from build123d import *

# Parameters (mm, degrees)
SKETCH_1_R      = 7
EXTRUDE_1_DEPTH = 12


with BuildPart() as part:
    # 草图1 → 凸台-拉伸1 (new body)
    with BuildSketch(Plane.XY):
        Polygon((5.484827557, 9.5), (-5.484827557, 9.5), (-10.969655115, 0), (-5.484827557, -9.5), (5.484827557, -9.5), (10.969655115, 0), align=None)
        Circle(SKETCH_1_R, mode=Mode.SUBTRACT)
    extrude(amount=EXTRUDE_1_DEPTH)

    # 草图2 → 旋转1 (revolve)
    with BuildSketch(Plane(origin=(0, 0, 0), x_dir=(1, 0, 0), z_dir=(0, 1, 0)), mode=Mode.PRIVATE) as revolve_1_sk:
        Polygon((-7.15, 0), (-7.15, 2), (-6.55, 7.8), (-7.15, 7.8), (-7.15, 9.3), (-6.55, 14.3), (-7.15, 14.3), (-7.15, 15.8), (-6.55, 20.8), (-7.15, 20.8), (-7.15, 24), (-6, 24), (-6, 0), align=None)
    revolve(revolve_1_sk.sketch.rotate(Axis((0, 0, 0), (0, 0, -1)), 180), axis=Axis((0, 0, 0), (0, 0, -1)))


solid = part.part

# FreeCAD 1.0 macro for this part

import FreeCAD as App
import Part
import Sketcher

V = App.Vector
Q = App.Units.Quantity

doc = App.newDocument("Part")
body = doc.addObject("PartDesign::Body", "Body")

# Sketch on XY plane
sketch1 = body.newObject("Sketcher::SketchObject", "Sketch")
sketch1.AttachmentSupport = (doc.getObject("XY_Plane"), [""])
sketch1.MapMode = "FlatFace"
sketch1.addGeometry([
    Part.LineSegment(V(5, 10, 0), V(-5, 10, 0)),  # 0
    Part.LineSegment(V(-5, 10, 0), V(-11, 0, 0)),  # 1
    Part.LineSegment(V(-11, 0, 0), V(-5, -10, 0)),  # 2
    Part.LineSegment(V(-5, -10, 0), V(5, -10, 0)),  # 3
    Part.LineSegment(V(5, -10, 0), V(11, 0, 0)),  # 4
    Part.LineSegment(V(11, 0, 0), V(5, 10, 0)),  # 5
    Part.Circle(V(0, 0, 0), V(0, 0, 1), 7),  # 6
], False)
sketch1.addConstraint([
    Sketcher.Constraint("Coincident", 0, 2, 1, 1),
    Sketcher.Constraint("Coincident", 1, 2, 2, 1),
    Sketcher.Constraint("Coincident", 2, 2, 3, 1),
    Sketcher.Constraint("Coincident", 3, 2, 4, 1),
    Sketcher.Constraint("Coincident", 4, 2, 5, 1),
    Sketcher.Constraint("Coincident", 5, 2, 0, 1),
    Sketcher.Constraint("Horizontal", 0),
    Sketcher.Constraint("Horizontal", 3),
    Sketcher.Constraint("Coincident", 6, 3, -1, 1),
    Sketcher.Constraint("Symmetric", 0, 2, 3, 2, -1, 1),
    Sketcher.Constraint("Symmetric", 1, 2, 4, 2, -1, 1),
    Sketcher.Constraint("PointOnObject", 1, 2, -1),
    Sketcher.Constraint("Parallel", 2, 5),
    Sketcher.Constraint("Vertical", 0, 2, 2, 2),
    Sketcher.Constraint("Diameter", 6, 14.0),
    Sketcher.Constraint("Angle", 1, Q("-120 deg")),
    Sketcher.Constraint("DistanceY", 2, 2, 0, 2, 19.0),
    Sketcher.Constraint("DistanceX", 0, 2, 0, 1, 10.969655),
])
pad1 = body.newObject("PartDesign::Pad", "Pad")
pad1.Profile = sketch1
pad1.Length = 12

# Sketch on XZ plane
sketch2 = body.newObject("Sketcher::SketchObject", "Sketch001")
sketch2.AttachmentSupport = (doc.getObject("XZ_Plane"), [""])
sketch2.MapMode = "FlatFace"
sketch2.addGeometry([
    Part.LineSegment(V(-7.2, -2, 0), V(-7.2, 0, 0)),  # 0
    Part.LineSegment(V(-7.2, 0, 0), V(-6, 0, 0)),  # 1
    Part.LineSegment(V(-6, 0, 0), V(-6, -24, 0)),  # 2
    Part.LineSegment(V(-6, -24, 0), V(-7.2, -24, 0)),  # 3
    Part.LineSegment(V(-7.2, -24, 0), V(-7.2, -20.8, 0)),  # 4
    Part.LineSegment(V(-7.2, -20.8, 0), V(-6.5, -20.8, 0)),  # 5
    Part.LineSegment(V(-6.5, -20.8, 0), V(-7.2, -15.8, 0)),  # 6
    Part.LineSegment(V(-7.2, -15.8, 0), V(-7.2, -14.3, 0)),  # 7
    Part.LineSegment(V(-7.2, -14.3, 0), V(-6.5, -14.3, 0)),  # 8
    Part.LineSegment(V(-6.5, -14.3, 0), V(-7.2, -9.3, 0)),  # 9
    Part.LineSegment(V(-7.2, -9.3, 0), V(-7.2, -7.8, 0)),  # 10
    Part.LineSegment(V(-7.2, -7.8, 0), V(-6.5, -7.8, 0)),  # 11
    Part.LineSegment(V(-6.5, -7.8, 0), V(-7.2, -2, 0)),  # 12
], False)
sketch2.addConstraint([
    Sketcher.Constraint("Coincident", 0, 2, 1, 1),
    Sketcher.Constraint("Coincident", 1, 2, 2, 1),
    Sketcher.Constraint("Coincident", 2, 2, 3, 1),
    Sketcher.Constraint("Coincident", 3, 2, 4, 1),
    Sketcher.Constraint("Coincident", 4, 2, 5, 1),
    Sketcher.Constraint("Coincident", 5, 2, 6, 1),
    Sketcher.Constraint("Coincident", 6, 2, 7, 1),
    Sketcher.Constraint("Coincident", 7, 2, 8, 1),
    Sketcher.Constraint("Coincident", 8, 2, 9, 1),
    Sketcher.Constraint("Coincident", 9, 2, 10, 1),
    Sketcher.Constraint("Coincident", 10, 2, 11, 1),
    Sketcher.Constraint("Coincident", 11, 2, 12, 1),
    Sketcher.Constraint("Coincident", 12, 2, 0, 1),
    Sketcher.Constraint("Vertical", 0),
    Sketcher.Constraint("Horizontal", 1),
    Sketcher.Constraint("Vertical", 2),
    Sketcher.Constraint("Horizontal", 3),
    Sketcher.Constraint("Vertical", 4),
    Sketcher.Constraint("Horizontal", 5),
    Sketcher.Constraint("Vertical", 7),
    Sketcher.Constraint("Horizontal", 8),
    Sketcher.Constraint("Vertical", 10),
    Sketcher.Constraint("Horizontal", 11),
    Sketcher.Constraint("PointOnObject", 0, 2, -1),
    Sketcher.Constraint("Parallel", 6, 9),
    Sketcher.Constraint("Vertical", 0, 2, 3, 2),
    Sketcher.Constraint("Vertical", 4, 2, 6, 2),
    Sketcher.Constraint("Vertical", 5, 2, 8, 2),
    Sketcher.Constraint("Vertical", 7, 2, 9, 2),
    Sketcher.Constraint("Vertical", 8, 2, 11, 2),
    Sketcher.Constraint("Equal", 7, 10),
    Sketcher.Constraint("DistanceY", 0, 1, 0, 2, 2.0),
    Sketcher.Constraint("DistanceY", 2, 2, 2, 1, 24.0),
    Sketcher.Constraint("DistanceX", 5, 1, 5, 2, 0.6),
    Sketcher.Constraint("DistanceY", 4, 1, 4, 2, 3.2),
    Sketcher.Constraint("DistanceY", 7, 1, 7, 2, 1.5),
    Sketcher.Constraint("DistanceX", 1, 2, -1, 1, 6.0),
    Sketcher.Constraint("DistanceY", 4, 2, 6, 2, 5.0),
    Sketcher.Constraint("DistanceX", 1, 1, 1, 2, 1.15),
])
revolution = body.newObject("PartDesign::Revolution", "Revolution")
revolution.Profile = sketch2
revolution.ReferenceAxis = (sketch2, ["V_Axis"])
revolution.Angle = 360

doc.recompute()
